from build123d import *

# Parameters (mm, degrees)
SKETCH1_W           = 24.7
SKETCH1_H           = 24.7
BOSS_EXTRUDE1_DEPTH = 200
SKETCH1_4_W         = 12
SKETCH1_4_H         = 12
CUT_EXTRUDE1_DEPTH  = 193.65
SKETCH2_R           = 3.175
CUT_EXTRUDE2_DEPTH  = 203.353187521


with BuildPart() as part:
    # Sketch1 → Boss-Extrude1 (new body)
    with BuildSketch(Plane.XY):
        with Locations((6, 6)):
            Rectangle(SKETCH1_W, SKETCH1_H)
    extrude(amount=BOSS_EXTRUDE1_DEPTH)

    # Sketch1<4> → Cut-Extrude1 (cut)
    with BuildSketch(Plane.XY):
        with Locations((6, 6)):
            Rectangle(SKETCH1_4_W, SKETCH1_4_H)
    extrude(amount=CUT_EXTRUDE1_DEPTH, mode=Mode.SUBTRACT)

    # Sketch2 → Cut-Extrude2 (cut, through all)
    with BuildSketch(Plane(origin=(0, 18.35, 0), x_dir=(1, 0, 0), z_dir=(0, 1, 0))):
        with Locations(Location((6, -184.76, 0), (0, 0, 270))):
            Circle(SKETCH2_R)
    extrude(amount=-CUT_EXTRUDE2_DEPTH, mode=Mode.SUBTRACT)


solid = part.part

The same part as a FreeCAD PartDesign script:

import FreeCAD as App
import Part
import Sketcher
Q = App.Units.Quantity


def add_polygon(sketch, points):
    """Adds a closed chain of lines whose ends are joined by coincident constraints."""
    first, n = sketch.GeometryCount, len(points)
    for a, b in zip(points, points[1:] + points[:1]):
        sketch.addGeometry(Part.LineSegment(App.Vector(*a, 0), App.Vector(*b, 0)), False)
    for i in range(n):
        sketch.addConstraint(Sketcher.Constraint("Coincident", first + i, 2, first + (i + 1) % n, 1))

doc = App.newDocument("Part")
body = doc.addObject("PartDesign::Body", "Body")

sketch1 = body.newObject("Sketcher::SketchObject", "Sketch")
sketch1.AttachmentSupport = (doc.getObject("XY_Plane"), [""])
sketch1.MapMode = "FlatFace"
add_polygon(sketch1, [(-6.35, 18.35), (-6.35, -6.35), (18.35, -6.35), (18.35, 18.35)])
sketch1.addConstraint([
    Sketcher.Constraint("Vertical", 0),
    Sketcher.Constraint("Horizontal", 1),
    Sketcher.Constraint("Vertical", 2),
    Sketcher.Constraint("Horizontal", 3),
    Sketcher.Constraint("Equal", 3, 0),
    Sketcher.Constraint("DistanceX", 1, 1, 1, 2, Q("24.7 mm")),
    Sketcher.Constraint("DistanceX", 0, 2, -1, 1, Q("6.35 mm")),
    Sketcher.Constraint("DistanceY", 0, 2, -1, 1, Q("6.35 mm")),
])
pad1 = body.newObject("PartDesign::Pad", "Pad")
pad1.Profile = sketch1
pad1.Length = 200

sketch2 = body.newObject("Sketcher::SketchObject", "Sketch001")
sketch2.AttachmentSupport = (doc.getObject("XY_Plane"), [""])
sketch2.MapMode = "FlatFace"
add_polygon(sketch2, [(0, 12), (0, 0), (12, 0), (12, 12)])
sketch2.addConstraint([
    Sketcher.Constraint("Vertical", 0),
    Sketcher.Constraint("Horizontal", 1),
    Sketcher.Constraint("Vertical", 2),
    Sketcher.Constraint("Horizontal", 3),
    Sketcher.Constraint("Coincident", 0, 2, -1, 1),
    Sketcher.Constraint("Equal", 3, 0),
    Sketcher.Constraint("DistanceX", 1, 1, 1, 2, Q("12 mm")),
])
pocket1 = body.newObject("PartDesign::Pocket", "Pocket")
pocket1.Profile = sketch2
pocket1.Length = 193.65
pocket1.Reversed = True

sketch3 = body.newObject("Sketcher::SketchObject", "Sketch002")
sketch3.AttachmentSupport = (doc.getObject("XZ_Plane"), [""])
sketch3.MapMode = "FlatFace"
sketch3.AttachmentOffset = App.Placement(App.Vector(0, 0, -18.35), App.Rotation())
sketch3.addGeometry(Part.Circle(App.Vector(6, 184.76, 0), App.Vector(0, 0, 1), 3.175), False)
sketch3.addConstraint([
    Sketcher.Constraint("Diameter", 0, Q("6.35 mm")),
    Sketcher.Constraint("DistanceX", -1, 1, 0, 3, Q("6 mm")),
    Sketcher.Constraint("DistanceY", -1, 1, 0, 3, Q("184.76 mm")),
])
pocket2 = body.newObject("PartDesign::Pocket", "Pocket001")
pocket2.Profile = sketch3
pocket2.Type = "ThroughAll"
pocket2.Reversed = True

doc.recompute()
